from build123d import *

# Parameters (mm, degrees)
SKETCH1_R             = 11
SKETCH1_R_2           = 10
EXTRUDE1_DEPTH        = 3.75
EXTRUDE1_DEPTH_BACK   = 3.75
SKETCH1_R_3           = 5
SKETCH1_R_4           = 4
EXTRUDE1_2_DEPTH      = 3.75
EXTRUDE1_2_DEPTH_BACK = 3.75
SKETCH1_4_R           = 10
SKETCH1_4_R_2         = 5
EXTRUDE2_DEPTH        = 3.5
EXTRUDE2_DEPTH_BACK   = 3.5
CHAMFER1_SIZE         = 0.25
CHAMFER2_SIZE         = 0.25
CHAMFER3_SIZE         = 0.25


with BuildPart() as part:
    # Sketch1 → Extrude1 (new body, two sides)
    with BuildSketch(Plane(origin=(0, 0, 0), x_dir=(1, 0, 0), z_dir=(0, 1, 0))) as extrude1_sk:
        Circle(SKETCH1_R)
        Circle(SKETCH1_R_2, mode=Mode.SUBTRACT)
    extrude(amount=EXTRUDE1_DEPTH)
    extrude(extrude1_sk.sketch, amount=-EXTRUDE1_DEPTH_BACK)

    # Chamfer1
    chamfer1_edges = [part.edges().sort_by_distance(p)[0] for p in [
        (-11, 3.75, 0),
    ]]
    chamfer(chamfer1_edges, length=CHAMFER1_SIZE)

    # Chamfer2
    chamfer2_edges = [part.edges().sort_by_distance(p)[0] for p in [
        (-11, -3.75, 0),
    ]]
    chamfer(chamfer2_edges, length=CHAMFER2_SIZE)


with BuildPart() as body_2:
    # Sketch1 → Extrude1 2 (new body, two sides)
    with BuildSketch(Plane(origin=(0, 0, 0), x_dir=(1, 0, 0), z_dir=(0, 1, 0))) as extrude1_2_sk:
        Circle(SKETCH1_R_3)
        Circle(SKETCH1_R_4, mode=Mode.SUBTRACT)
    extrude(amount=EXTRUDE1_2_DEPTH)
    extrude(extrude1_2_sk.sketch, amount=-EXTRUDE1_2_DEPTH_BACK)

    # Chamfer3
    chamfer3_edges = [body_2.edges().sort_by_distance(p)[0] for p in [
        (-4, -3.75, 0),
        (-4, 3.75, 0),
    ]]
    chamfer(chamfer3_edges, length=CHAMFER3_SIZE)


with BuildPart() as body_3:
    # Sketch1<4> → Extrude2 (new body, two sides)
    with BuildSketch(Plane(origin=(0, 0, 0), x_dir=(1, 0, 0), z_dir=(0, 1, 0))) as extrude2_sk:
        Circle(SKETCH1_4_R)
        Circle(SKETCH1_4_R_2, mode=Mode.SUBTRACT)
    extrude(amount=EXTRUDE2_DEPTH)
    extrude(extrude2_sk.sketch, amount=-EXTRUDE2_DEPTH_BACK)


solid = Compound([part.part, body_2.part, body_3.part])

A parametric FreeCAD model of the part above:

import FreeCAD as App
import Part
import Sketcher
from FreeCAD import Vector


def edges_at(feature, points):
    """Names of the edges that pass closest to the given points."""
    edges = feature.Shape.Edges
    near = lambda p: min(range(len(edges)), key=lambda i: edges[i].distToShape(Part.Vertex(*p))[0])
    return sorted({f"Edge{near(p) + 1}" for p in points})

doc = App.newDocument("Part")
body = doc.addObject("PartDesign::Body", "Body")

# Sketch on XZ plane
sketch1 = doc.addObject("Sketcher::SketchObject", "Sketch")
body.addObject(sketch1)
sketch1.AttachmentSupport = (doc.XZ_Plane, [""])
sketch1.MapMode = "FlatFace"
sketch1.addGeometry([
    Part.Circle(Vector(0, 0, 0), Vector(0, 0, 1), 11),
    Part.Circle(Vector(0, 0, 0), Vector(0, 0, 1), 10),
], False)
sketch1.addConstraint([
    Sketcher.Constraint("Coincident", 0, 3, -1, 1),
    Sketcher.Constraint("Coincident", 1, 3, -1, 1),
    Sketcher.Constraint("Diameter", 0, 22.0),
    Sketcher.Constraint("Diameter", 1, 20.0),
])
pad1 = doc.addObject("PartDesign::Pad", "Pad")
body.addObject(pad1)
pad1.Profile = sketch1
pad1.Type = "TwoLengths"
pad1.Length = 3.75
pad1.Length2 = 3.75
pad1.Reversed = True
doc.recompute()

chamfer = doc.addObject("PartDesign::Chamfer", "Chamfer")
body.addObject(chamfer)
chamfer.Base = (pad1, edges_at(pad1, [(-11, 3.75, 0)]))
chamfer.Size = 0.25
doc.recompute()

chamfer2 = doc.addObject("PartDesign::Chamfer", "Chamfer001")
body.addObject(chamfer2)
chamfer2.Base = (chamfer, edges_at(chamfer, [(-11, -3.75, 0)]))
chamfer2.Size = 0.25
body2 = doc.addObject("PartDesign::Body", "Body001")

# Sketch on XZ plane
sketch2 = doc.addObject("Sketcher::SketchObject", "Sketch001")
body2.addObject(sketch2)
sketch2.AttachmentSupport = (doc.getObject("XZ_Plane001"), [""])
sketch2.MapMode = "FlatFace"
sketch2.addGeometry([
    Part.Circle(Vector(0, 0, 0), Vector(0, 0, 1), 5),
    Part.Circle(Vector(0, 0, 0), Vector(0, 0, 1), 4),
], False)
sketch2.addConstraint([
    Sketcher.Constraint("Coincident", 0, 3, -1, 1),
    Sketcher.Constraint("Coincident", 1, 3, -1, 1),
    Sketcher.Constraint("Diameter", 0, 10.0),
    Sketcher.Constraint("Diameter", 1, 8.0),
])
pad2 = doc.addObject("PartDesign::Pad", "Pad001")
body2.addObject(pad2)
pad2.Profile = sketch2
pad2.Type = "TwoLengths"
pad2.Length = 3.75
pad2.Length2 = 3.75
pad2.Reversed = True
doc.recompute()

chamfer3 = doc.addObject("PartDesign::Chamfer", "Chamfer002")
body2.addObject(chamfer3)
chamfer3.Base = (pad2, edges_at(pad2, [(-4, -3.75, 0), (-4, 3.75, 0)]))
chamfer3.Size = 0.25
body3 = doc.addObject("PartDesign::Body", "Body002")

# Sketch on XZ plane
sketch3 = doc.addObject("Sketcher::SketchObject", "Sketch002")
body3.addObject(sketch3)
sketch3.AttachmentSupport = (doc.getObject("XZ_Plane002"), [""])
sketch3.MapMode = "FlatFace"
sketch3.addGeometry([
    Part.Circle(Vector(0, 0, 0), Vector(0, 0, 1), 10),
    Part.Circle(Vector(0, 0, 0), Vector(0, 0, 1), 5),
], False)
sketch3.addConstraint([
    Sketcher.Constraint("Coincident", 0, 3, -1, 1),
    Sketcher.Constraint("Coincident", 1, 3, -1, 1),
    Sketcher.Constraint("Diameter", 0, 20.0),
    Sketcher.Constraint("Diameter", 1, 10.0),
])
pad3 = doc.addObject("PartDesign::Pad", "Pad002")
body3.addObject(pad3)
pad3.Profile = sketch3
pad3.Type = "TwoLengths"
pad3.Length = 3.5
pad3.Length2 = 3.5
pad3.Reversed = True

doc.recompute()
